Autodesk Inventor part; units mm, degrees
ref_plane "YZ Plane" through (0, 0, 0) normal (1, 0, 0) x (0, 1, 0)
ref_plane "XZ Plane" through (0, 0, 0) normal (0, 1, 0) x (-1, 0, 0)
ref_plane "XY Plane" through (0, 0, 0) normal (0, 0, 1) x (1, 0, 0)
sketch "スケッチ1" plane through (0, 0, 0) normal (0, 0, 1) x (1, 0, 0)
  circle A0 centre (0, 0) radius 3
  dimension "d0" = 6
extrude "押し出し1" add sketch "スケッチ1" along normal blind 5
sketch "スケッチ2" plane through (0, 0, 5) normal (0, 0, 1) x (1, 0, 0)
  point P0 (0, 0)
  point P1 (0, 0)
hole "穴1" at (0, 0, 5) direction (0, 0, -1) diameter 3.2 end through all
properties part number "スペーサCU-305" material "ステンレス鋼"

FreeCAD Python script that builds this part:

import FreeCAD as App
import Part
import Sketcher
from FreeCAD import Vector

doc = App.newDocument("Part")
body = doc.addObject("PartDesign::Body", "Body")

# Sketch on XY plane
sketch1 = body.newObject("Sketcher::SketchObject", "Sketch")
sketch1.AttachmentSupport = (doc.getObject("XY_Plane"), [""])
sketch1.MapMode = "FlatFace"
sketch1.addGeometry(Part.Circle(Vector(0, 0, 0), Vector(0, 0, 1), 3), False)
sketch1.addConstraint([
    Sketcher.Constraint("Coincident", 0, 3, -1, 1),
    Sketcher.Constraint("Diameter", 0, 6.0),
])
pad1 = body.newObject("PartDesign::Pad", "Pad")
pad1.Profile = sketch1
pad1.Length = 5

# Sketch on XY plane
sketch2 = body.newObject("Sketcher::SketchObject", "Sketch001")
sketch2.AttachmentSupport = (doc.getObject("XY_Plane"), [""])
sketch2.MapMode = "FlatFace"
sketch2.AttachmentOffset = App.Placement(Vector(0, 0, 5), App.Rotation())
sketch2.addGeometry(Part.Circle(Vector(0, 0, 0), Vector(0, 0, 1), 1.6), False)
sketch2.addConstraint([
    Sketcher.Constraint("Coincident", 0, 3, -1, 1),
    Sketcher.Constraint("Diameter", 0, 3.2),
])
doc.recompute()
hole = body.newObject("PartDesign::Hole", "Hole")
hole.Profile = sketch2
hole.ThreadType = "None"
hole.Diameter = 3.2
hole.DepthType = "ThroughAll"

doc.recompute()
